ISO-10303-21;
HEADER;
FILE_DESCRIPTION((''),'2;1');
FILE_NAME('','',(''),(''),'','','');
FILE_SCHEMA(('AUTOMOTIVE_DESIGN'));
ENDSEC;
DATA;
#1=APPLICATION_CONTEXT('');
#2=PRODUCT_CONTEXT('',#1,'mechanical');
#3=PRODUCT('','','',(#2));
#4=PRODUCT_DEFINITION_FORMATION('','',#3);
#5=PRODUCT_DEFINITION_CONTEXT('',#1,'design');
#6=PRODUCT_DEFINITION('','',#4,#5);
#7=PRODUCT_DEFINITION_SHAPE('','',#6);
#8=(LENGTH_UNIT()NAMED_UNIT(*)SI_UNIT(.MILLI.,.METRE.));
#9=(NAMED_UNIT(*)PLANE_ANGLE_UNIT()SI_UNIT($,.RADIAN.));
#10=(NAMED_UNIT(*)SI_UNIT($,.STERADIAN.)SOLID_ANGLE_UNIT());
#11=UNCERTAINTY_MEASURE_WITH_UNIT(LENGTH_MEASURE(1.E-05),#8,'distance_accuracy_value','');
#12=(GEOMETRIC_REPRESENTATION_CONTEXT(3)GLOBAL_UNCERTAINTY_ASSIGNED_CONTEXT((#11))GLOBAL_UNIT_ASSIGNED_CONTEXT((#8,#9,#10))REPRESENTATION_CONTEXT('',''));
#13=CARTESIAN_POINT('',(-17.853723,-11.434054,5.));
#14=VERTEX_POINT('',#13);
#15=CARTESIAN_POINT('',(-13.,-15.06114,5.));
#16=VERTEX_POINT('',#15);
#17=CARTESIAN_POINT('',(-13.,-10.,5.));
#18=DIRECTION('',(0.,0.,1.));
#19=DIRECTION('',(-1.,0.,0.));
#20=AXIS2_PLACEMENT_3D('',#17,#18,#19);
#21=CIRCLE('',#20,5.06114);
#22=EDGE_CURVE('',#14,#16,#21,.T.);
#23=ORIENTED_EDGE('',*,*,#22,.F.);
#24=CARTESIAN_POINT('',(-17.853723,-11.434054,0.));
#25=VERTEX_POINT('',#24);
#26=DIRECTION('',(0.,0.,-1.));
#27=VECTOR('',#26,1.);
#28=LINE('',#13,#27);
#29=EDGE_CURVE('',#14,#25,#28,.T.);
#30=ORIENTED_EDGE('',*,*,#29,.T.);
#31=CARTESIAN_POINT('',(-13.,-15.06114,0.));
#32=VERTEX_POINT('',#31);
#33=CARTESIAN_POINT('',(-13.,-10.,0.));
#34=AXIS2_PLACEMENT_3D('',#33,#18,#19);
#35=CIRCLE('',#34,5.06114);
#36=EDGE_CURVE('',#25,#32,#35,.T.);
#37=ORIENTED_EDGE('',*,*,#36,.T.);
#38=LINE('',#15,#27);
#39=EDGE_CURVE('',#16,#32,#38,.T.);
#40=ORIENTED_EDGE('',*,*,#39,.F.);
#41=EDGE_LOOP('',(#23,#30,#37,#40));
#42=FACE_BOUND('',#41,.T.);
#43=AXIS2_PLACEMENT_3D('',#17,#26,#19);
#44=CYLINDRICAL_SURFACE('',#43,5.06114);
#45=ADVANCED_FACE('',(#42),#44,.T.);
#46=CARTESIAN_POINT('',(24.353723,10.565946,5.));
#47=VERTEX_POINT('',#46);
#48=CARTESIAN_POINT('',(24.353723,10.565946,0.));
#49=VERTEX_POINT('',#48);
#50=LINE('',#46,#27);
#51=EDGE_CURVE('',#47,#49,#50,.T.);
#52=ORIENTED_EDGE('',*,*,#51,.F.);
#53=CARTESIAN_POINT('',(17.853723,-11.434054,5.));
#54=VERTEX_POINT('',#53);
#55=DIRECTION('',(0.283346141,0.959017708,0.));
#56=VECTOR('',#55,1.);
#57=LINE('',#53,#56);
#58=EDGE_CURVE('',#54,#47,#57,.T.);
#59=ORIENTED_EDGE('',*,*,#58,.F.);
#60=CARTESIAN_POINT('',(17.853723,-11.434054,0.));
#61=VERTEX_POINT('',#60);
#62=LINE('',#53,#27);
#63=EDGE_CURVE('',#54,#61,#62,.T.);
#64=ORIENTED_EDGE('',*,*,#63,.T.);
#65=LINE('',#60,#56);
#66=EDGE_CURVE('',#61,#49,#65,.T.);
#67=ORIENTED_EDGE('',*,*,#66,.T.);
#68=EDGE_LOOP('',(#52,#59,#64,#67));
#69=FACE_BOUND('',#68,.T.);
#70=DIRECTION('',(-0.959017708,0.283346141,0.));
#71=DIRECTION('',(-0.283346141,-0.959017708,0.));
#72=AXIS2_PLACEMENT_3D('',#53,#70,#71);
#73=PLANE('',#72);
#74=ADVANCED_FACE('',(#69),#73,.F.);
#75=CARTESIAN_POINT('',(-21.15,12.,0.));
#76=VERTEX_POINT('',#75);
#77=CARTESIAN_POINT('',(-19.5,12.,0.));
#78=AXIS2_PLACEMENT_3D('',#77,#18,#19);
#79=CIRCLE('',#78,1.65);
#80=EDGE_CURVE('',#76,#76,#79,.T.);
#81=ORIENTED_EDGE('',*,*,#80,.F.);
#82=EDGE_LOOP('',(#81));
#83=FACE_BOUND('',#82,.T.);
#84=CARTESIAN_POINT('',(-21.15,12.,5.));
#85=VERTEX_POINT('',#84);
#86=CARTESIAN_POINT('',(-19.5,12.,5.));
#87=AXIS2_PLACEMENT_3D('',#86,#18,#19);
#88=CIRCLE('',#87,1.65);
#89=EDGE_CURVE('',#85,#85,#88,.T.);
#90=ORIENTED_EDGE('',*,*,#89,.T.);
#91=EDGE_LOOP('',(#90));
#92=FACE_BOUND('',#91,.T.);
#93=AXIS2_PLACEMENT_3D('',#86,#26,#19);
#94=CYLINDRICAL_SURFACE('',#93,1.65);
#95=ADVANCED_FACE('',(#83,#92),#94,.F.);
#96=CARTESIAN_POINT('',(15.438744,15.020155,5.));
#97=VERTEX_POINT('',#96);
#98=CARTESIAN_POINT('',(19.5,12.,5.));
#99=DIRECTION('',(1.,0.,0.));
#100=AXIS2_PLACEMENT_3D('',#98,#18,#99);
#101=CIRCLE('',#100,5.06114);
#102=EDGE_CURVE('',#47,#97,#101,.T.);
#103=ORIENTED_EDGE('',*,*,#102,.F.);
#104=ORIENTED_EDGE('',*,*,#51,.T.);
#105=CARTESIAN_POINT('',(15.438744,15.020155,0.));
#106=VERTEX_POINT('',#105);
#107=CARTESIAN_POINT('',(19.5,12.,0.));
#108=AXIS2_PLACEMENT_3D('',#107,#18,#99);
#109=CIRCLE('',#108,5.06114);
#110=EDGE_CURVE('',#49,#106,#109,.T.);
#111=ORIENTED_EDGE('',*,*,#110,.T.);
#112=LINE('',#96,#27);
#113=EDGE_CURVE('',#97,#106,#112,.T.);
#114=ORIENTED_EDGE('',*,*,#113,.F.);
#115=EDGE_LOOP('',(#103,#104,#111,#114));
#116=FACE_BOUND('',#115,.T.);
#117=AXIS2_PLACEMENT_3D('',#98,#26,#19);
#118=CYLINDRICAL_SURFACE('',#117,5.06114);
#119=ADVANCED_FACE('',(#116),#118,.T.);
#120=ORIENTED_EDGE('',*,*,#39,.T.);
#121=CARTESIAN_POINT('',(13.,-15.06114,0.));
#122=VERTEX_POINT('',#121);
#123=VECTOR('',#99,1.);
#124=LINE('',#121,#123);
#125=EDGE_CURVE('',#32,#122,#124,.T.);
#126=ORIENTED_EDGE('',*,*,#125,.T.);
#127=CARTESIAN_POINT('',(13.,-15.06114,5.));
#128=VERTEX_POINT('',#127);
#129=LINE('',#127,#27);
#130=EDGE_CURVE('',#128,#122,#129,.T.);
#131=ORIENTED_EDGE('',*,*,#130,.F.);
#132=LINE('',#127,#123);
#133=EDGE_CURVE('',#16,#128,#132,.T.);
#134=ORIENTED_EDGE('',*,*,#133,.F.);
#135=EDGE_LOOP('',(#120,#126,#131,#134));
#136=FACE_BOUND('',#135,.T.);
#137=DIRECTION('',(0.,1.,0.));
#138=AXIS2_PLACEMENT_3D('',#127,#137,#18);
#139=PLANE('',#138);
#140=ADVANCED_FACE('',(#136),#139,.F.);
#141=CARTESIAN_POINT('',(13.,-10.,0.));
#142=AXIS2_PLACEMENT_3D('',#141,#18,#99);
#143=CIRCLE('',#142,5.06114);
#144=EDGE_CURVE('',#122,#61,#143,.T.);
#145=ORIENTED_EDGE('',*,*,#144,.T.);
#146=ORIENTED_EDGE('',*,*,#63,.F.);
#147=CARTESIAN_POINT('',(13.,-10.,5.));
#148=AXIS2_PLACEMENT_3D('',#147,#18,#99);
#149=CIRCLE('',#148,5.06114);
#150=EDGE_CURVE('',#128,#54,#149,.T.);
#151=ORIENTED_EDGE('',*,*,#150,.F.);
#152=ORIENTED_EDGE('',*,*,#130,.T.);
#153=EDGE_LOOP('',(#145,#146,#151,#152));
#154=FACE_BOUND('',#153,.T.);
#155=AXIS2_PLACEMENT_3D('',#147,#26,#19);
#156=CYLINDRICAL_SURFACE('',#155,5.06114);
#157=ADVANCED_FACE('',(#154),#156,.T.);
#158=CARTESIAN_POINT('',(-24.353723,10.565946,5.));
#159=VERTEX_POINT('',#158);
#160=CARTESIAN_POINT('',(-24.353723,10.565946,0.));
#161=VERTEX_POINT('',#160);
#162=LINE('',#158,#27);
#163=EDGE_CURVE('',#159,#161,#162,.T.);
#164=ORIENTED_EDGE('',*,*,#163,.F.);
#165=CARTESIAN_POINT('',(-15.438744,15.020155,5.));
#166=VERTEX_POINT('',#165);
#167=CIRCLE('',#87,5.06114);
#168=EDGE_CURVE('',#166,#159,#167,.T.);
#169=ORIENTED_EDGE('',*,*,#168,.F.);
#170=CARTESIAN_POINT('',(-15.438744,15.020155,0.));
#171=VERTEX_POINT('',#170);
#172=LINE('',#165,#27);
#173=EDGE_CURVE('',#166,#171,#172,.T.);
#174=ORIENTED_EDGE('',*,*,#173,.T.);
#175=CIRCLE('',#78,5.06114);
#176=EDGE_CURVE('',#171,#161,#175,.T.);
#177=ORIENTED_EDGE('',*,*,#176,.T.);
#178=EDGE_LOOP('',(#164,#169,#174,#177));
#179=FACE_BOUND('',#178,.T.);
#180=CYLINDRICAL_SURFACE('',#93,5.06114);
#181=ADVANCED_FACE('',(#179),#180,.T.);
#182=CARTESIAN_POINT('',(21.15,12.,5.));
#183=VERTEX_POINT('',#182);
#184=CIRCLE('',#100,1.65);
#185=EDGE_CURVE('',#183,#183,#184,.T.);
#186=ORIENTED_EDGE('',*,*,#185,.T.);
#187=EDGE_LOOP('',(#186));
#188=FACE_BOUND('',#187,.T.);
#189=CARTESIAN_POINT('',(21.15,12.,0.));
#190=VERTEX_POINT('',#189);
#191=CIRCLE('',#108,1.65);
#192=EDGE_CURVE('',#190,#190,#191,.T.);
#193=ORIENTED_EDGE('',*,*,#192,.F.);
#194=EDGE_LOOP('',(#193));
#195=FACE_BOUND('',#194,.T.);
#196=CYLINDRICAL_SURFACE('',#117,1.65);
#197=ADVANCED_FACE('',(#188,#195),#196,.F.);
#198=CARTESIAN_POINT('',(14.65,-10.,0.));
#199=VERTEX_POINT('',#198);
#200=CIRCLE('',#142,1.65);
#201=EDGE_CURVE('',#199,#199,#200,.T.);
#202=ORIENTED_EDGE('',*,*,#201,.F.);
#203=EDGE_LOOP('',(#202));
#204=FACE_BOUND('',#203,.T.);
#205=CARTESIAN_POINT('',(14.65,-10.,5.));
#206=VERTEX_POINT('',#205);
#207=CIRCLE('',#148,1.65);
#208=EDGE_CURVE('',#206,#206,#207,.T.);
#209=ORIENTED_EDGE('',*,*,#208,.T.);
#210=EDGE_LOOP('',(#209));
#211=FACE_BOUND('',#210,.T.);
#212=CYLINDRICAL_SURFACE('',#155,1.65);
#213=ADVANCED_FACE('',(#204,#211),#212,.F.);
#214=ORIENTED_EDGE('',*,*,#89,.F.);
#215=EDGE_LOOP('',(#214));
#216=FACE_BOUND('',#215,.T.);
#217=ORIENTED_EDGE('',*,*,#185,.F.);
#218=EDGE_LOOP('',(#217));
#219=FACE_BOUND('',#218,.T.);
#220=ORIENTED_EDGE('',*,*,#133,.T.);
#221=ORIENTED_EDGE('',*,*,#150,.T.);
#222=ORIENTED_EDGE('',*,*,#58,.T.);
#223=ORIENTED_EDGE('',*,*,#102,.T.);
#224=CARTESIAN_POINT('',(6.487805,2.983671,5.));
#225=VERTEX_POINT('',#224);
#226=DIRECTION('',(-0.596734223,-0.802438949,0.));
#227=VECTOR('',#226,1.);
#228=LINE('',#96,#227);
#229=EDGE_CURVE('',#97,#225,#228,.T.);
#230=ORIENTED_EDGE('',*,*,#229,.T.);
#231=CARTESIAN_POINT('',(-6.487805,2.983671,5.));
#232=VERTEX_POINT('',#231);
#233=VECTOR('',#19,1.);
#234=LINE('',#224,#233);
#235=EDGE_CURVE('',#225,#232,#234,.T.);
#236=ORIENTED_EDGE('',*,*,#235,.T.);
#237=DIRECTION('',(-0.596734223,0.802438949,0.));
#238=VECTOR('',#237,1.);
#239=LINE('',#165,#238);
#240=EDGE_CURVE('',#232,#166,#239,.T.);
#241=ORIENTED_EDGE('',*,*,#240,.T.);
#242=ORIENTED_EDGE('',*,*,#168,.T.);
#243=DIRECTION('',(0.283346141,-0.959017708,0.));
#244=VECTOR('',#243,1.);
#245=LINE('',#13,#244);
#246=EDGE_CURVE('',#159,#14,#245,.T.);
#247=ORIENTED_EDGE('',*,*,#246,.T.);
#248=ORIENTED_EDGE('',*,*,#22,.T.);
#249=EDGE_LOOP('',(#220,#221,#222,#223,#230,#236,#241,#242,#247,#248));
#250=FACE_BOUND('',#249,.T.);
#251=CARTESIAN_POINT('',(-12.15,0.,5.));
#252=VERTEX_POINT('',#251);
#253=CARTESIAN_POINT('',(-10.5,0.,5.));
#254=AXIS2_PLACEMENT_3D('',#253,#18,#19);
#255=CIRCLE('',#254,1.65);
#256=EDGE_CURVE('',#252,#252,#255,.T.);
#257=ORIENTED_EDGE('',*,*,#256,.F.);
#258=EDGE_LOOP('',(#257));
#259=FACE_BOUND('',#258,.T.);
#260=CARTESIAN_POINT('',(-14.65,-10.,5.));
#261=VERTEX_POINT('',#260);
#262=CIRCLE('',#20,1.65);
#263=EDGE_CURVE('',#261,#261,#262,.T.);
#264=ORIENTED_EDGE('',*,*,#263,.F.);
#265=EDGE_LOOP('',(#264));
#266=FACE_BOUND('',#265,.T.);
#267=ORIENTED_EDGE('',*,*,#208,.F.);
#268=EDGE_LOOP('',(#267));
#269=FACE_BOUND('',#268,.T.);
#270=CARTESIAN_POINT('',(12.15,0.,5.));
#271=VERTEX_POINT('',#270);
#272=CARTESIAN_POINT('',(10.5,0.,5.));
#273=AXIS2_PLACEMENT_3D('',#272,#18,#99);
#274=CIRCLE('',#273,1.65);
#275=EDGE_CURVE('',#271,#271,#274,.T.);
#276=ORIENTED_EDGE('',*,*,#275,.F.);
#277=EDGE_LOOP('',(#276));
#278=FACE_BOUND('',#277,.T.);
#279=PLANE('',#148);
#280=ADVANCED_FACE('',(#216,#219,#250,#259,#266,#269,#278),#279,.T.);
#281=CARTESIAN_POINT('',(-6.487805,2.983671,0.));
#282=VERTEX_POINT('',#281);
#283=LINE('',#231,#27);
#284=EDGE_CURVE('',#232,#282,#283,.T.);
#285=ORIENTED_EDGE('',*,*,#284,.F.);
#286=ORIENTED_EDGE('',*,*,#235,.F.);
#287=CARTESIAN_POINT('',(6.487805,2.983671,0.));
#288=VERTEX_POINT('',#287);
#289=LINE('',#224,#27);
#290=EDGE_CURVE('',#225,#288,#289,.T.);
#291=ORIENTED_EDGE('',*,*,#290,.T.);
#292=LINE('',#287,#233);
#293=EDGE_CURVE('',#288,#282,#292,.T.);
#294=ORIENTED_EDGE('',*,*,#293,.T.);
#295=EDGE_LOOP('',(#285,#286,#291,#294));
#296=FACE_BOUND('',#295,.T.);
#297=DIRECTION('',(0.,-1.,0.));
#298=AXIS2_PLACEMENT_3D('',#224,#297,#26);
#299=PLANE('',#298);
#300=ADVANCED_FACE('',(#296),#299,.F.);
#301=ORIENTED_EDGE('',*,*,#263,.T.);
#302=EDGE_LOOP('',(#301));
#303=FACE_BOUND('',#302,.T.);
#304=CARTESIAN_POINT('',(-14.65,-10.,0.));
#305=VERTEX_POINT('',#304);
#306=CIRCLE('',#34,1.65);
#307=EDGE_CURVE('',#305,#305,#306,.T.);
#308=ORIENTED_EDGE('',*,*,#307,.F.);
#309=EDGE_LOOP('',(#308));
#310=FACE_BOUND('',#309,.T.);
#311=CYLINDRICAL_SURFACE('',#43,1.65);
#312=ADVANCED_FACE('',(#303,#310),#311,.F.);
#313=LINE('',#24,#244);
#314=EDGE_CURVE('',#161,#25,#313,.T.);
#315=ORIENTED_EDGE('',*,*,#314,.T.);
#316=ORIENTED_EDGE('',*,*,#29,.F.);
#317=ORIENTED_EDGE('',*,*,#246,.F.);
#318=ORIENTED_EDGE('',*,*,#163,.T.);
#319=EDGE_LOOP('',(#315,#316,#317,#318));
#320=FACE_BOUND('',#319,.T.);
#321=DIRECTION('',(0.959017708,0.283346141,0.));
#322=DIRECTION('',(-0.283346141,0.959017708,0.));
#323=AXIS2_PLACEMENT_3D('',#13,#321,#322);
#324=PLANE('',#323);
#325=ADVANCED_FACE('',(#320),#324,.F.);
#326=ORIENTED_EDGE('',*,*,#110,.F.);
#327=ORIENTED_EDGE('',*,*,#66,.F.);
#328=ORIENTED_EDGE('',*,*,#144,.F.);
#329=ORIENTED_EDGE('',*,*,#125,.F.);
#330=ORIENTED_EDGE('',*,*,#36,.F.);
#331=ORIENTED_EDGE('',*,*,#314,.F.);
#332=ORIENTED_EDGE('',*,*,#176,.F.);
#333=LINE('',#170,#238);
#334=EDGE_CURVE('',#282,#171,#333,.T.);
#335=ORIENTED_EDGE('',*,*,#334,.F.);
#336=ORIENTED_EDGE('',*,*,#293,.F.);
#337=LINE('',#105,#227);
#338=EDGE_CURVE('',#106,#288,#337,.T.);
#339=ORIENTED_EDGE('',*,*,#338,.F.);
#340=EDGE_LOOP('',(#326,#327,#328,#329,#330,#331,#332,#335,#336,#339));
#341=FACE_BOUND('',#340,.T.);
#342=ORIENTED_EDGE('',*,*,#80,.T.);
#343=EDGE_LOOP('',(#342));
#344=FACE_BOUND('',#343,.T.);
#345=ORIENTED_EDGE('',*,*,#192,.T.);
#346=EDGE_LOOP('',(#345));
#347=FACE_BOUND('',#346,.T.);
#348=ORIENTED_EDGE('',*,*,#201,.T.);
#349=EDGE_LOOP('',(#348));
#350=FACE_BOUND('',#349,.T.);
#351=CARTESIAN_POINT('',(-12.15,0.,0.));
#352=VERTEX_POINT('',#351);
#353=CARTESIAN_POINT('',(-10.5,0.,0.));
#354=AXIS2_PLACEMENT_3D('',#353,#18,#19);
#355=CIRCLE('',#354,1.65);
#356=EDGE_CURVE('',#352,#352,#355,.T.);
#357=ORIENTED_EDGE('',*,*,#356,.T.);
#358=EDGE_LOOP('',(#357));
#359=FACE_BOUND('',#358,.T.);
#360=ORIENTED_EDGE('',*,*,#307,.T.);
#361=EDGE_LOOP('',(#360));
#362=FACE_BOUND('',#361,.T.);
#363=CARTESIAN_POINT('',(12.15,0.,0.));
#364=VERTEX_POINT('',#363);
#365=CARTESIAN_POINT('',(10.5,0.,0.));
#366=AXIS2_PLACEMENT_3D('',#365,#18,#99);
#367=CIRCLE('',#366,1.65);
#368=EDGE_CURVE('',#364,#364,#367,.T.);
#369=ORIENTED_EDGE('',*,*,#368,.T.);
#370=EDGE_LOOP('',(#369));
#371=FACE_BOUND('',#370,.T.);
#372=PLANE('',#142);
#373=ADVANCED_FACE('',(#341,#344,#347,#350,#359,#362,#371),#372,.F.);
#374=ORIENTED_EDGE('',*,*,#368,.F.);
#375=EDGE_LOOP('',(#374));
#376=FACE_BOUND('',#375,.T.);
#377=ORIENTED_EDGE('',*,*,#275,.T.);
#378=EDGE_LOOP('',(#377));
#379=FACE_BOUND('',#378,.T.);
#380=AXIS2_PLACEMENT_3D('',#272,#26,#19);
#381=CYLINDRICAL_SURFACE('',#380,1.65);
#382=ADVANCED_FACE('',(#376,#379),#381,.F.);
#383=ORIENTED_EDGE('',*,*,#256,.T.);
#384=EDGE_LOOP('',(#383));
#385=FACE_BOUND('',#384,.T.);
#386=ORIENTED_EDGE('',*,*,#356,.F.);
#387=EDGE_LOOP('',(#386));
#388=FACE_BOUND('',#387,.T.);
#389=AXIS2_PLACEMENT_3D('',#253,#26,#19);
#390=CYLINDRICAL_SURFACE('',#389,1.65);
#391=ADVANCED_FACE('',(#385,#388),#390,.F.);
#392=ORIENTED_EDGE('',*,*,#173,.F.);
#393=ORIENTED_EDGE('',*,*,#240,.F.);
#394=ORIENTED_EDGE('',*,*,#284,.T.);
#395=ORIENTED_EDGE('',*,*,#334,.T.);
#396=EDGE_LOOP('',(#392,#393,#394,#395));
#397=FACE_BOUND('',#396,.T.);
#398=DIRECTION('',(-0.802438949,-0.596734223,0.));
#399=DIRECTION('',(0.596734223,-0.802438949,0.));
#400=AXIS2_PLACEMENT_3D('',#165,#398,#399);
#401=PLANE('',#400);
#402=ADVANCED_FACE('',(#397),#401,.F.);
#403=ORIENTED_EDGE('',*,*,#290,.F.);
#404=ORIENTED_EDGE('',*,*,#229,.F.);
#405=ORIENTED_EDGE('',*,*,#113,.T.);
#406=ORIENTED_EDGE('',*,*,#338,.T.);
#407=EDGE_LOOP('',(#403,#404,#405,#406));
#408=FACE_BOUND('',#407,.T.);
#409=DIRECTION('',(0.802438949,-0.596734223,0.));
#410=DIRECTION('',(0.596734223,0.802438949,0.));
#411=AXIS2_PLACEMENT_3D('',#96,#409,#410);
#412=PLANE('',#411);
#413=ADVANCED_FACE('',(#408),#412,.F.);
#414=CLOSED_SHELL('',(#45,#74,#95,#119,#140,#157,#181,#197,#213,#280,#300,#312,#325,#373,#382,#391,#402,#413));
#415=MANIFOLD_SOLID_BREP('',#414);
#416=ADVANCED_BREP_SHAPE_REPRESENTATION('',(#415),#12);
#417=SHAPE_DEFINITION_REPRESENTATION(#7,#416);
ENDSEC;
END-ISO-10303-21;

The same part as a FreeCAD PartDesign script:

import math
import FreeCAD as App
import Part
import Sketcher

V = App.Vector
Q = App.Units.Quantity

doc = App.newDocument("Part")
body = doc.addObject("PartDesign::Body", "Body")

# Sketch on XY plane
sketch1 = doc.addObject("Sketcher::SketchObject", "Sketch")
body.addObject(sketch1)
sketch1.AttachmentSupport = (doc.XY_Plane, [""])
sketch1.MapMode = "FlatFace"
sketch1.addGeometry(Part.LineSegment(V(17.9, -11.4, 0), V(24.4, 10.6, 0)), False)
sketch1.addGeometry(Part.ArcOfCircle(Part.Circle(V(19.5, 12, 0), V(0, 0, 1), 5.1), math.radians(-16), math.radians(143)), False)
sketch1.addGeometry(Part.LineSegment(V(15.4, 15, 0), V(6.5, 3, 0)), False)
sketch1.addGeometry(Part.LineSegment(V(6.5, 3, 0), V(-6.5, 3, 0)), False)
sketch1.addGeometry(Part.LineSegment(V(-6.5, 3, 0), V(-15.4, 15, 0)), False)
sketch1.addGeometry(Part.ArcOfCircle(Part.Circle(V(-19.5, 12, 0), V(0, 0, 1), 5.1), math.radians(37), math.radians(196)), False)
sketch1.addGeometry(Part.LineSegment(V(-24.4, 10.6, 0), V(-17.9, -11.4, 0)), False)
sketch1.addGeometry(Part.ArcOfCircle(Part.Circle(V(-13, -10, 0), V(0, 0, 1), 5.1), math.radians(-164), math.radians(-90)), False)
sketch1.addGeometry(Part.LineSegment(V(-13, -15.1, 0), V(13, -15.1, 0)), False)
sketch1.addGeometry(Part.ArcOfCircle(Part.Circle(V(13, -10, 0), V(0, 0, 1), 5.1), math.radians(-90), math.radians(-16)), False)
sketch1.addGeometry(Part.Circle(V(-13, -10, 0), V(0, 0, 1), 1.6), False)
sketch1.addGeometry(Part.Circle(V(-10.5, 0, 0), V(0, 0, 1), 1.6), False)
sketch1.addGeometry(Part.Circle(V(13, -10, 0), V(0, 0, 1), 1.6), False)
sketch1.addGeometry(Part.Circle(V(10.5, 0, 0), V(0, 0, 1), 1.6), False)
sketch1.addGeometry(Part.Circle(V(-19.5, 12, 0), V(0, 0, 1), 1.6), False)
sketch1.addGeometry(Part.Circle(V(19.5, 12, 0), V(0, 0, 1), 1.6), False)
sketch1.addConstraint(Sketcher.Constraint("Tangent", 0, 2, 1, 1))
sketch1.addConstraint(Sketcher.Constraint("Tangent", 1, 2, 2, 1))
sketch1.addConstraint(Sketcher.Constraint("Coincident", 2, 2, 3, 1))
sketch1.addConstraint(Sketcher.Constraint("Coincident", 3, 2, 4, 1))
sketch1.addConstraint(Sketcher.Constraint("Tangent", 4, 2, 5, 1))
sketch1.addConstraint(Sketcher.Constraint("Tangent", 5, 2, 6, 1))
sketch1.addConstraint(Sketcher.Constraint("Tangent", 6, 2, 7, 1))
sketch1.addConstraint(Sketcher.Constraint("Tangent", 7, 2, 8, 1))
sketch1.addConstraint(Sketcher.Constraint("Tangent", 8, 2, 9, 1))
sketch1.addConstraint(Sketcher.Constraint("Tangent", 9, 2, 0, 1))
sketch1.addConstraint(Sketcher.Constraint("Horizontal", 3))
sketch1.addConstraint(Sketcher.Constraint("Horizontal", 8))
sketch1.addConstraint(Sketcher.Constraint("Coincident", 10, 3, 7, 3))
sketch1.addConstraint(Sketcher.Constraint("Coincident", 12, 3, 9, 3))
sketch1.addConstraint(Sketcher.Constraint("Coincident", 14, 3, 5, 3))
sketch1.addConstraint(Sketcher.Constraint("Coincident", 15, 3, 1, 3))
sketch1.addConstraint(Sketcher.Constraint("Equal", 1, 5))
sketch1.addConstraint(Sketcher.Constraint("Equal", 5, 7))
sketch1.addConstraint(Sketcher.Constraint("Equal", 7, 9))
sketch1.addConstraint(Sketcher.Constraint("Equal", 10, 11))
sketch1.addConstraint(Sketcher.Constraint("Equal", 11, 12))
sketch1.addConstraint(Sketcher.Constraint("Equal", 12, 13))
sketch1.addConstraint(Sketcher.Constraint("Equal", 13, 14))
sketch1.addConstraint(Sketcher.Constraint("Equal", 14, 15))
sketch1.addConstraint(Sketcher.Constraint("Symmetric", 11, 3, 13, 3, -1, 1))
sketch1.addConstraint(Sketcher.Constraint("Symmetric", 1, 3, 5, 3, -2))
sketch1.addConstraint(Sketcher.Constraint("PointOnObject", 11, 3, -1))
sketch1.addConstraint(Sketcher.Constraint("Horizontal", 1, 2, 4, 2))
sketch1.addConstraint(Sketcher.Constraint("Horizontal", 0, 2, 5, 2))
sketch1.addConstraint(Sketcher.Constraint("Diameter", 10, Q("3.3 mm")))
sketch1.addConstraint(Sketcher.Constraint("DistanceX", 8, 1, 8, 2, Q("26 mm")))
sketch1.addConstraint(Sketcher.Constraint("DistanceY", -1, 1, 1, 3, Q("12 mm")))
sketch1.addConstraint(Sketcher.Constraint("DistanceY", 7, 3, -1, 1, Q("10 mm")))
sketch1.addConstraint(Sketcher.Constraint("DistanceX", 5, 3, 1, 3, Q("39 mm")))
sketch1.addConstraint(Sketcher.Constraint("DistanceX", 5, 3, 11, 3, Q("9 mm")))
sketch1.addConstraint(Sketcher.Constraint("Radius", 1, Q("5.06114 mm")))
sketch1.addConstraint(Sketcher.Constraint("DistanceX", 3, 2, 3, 1, Q("12.975611 mm")))
sketch1.addConstraint(Sketcher.Constraint("DistanceY", -1, 1, 2, 2, Q("2.983671 mm")))
pad1 = doc.addObject("PartDesign::Pad", "Pad")
body.addObject(pad1)
pad1.Profile = sketch1
pad1.Length = 5

doc.recompute()
